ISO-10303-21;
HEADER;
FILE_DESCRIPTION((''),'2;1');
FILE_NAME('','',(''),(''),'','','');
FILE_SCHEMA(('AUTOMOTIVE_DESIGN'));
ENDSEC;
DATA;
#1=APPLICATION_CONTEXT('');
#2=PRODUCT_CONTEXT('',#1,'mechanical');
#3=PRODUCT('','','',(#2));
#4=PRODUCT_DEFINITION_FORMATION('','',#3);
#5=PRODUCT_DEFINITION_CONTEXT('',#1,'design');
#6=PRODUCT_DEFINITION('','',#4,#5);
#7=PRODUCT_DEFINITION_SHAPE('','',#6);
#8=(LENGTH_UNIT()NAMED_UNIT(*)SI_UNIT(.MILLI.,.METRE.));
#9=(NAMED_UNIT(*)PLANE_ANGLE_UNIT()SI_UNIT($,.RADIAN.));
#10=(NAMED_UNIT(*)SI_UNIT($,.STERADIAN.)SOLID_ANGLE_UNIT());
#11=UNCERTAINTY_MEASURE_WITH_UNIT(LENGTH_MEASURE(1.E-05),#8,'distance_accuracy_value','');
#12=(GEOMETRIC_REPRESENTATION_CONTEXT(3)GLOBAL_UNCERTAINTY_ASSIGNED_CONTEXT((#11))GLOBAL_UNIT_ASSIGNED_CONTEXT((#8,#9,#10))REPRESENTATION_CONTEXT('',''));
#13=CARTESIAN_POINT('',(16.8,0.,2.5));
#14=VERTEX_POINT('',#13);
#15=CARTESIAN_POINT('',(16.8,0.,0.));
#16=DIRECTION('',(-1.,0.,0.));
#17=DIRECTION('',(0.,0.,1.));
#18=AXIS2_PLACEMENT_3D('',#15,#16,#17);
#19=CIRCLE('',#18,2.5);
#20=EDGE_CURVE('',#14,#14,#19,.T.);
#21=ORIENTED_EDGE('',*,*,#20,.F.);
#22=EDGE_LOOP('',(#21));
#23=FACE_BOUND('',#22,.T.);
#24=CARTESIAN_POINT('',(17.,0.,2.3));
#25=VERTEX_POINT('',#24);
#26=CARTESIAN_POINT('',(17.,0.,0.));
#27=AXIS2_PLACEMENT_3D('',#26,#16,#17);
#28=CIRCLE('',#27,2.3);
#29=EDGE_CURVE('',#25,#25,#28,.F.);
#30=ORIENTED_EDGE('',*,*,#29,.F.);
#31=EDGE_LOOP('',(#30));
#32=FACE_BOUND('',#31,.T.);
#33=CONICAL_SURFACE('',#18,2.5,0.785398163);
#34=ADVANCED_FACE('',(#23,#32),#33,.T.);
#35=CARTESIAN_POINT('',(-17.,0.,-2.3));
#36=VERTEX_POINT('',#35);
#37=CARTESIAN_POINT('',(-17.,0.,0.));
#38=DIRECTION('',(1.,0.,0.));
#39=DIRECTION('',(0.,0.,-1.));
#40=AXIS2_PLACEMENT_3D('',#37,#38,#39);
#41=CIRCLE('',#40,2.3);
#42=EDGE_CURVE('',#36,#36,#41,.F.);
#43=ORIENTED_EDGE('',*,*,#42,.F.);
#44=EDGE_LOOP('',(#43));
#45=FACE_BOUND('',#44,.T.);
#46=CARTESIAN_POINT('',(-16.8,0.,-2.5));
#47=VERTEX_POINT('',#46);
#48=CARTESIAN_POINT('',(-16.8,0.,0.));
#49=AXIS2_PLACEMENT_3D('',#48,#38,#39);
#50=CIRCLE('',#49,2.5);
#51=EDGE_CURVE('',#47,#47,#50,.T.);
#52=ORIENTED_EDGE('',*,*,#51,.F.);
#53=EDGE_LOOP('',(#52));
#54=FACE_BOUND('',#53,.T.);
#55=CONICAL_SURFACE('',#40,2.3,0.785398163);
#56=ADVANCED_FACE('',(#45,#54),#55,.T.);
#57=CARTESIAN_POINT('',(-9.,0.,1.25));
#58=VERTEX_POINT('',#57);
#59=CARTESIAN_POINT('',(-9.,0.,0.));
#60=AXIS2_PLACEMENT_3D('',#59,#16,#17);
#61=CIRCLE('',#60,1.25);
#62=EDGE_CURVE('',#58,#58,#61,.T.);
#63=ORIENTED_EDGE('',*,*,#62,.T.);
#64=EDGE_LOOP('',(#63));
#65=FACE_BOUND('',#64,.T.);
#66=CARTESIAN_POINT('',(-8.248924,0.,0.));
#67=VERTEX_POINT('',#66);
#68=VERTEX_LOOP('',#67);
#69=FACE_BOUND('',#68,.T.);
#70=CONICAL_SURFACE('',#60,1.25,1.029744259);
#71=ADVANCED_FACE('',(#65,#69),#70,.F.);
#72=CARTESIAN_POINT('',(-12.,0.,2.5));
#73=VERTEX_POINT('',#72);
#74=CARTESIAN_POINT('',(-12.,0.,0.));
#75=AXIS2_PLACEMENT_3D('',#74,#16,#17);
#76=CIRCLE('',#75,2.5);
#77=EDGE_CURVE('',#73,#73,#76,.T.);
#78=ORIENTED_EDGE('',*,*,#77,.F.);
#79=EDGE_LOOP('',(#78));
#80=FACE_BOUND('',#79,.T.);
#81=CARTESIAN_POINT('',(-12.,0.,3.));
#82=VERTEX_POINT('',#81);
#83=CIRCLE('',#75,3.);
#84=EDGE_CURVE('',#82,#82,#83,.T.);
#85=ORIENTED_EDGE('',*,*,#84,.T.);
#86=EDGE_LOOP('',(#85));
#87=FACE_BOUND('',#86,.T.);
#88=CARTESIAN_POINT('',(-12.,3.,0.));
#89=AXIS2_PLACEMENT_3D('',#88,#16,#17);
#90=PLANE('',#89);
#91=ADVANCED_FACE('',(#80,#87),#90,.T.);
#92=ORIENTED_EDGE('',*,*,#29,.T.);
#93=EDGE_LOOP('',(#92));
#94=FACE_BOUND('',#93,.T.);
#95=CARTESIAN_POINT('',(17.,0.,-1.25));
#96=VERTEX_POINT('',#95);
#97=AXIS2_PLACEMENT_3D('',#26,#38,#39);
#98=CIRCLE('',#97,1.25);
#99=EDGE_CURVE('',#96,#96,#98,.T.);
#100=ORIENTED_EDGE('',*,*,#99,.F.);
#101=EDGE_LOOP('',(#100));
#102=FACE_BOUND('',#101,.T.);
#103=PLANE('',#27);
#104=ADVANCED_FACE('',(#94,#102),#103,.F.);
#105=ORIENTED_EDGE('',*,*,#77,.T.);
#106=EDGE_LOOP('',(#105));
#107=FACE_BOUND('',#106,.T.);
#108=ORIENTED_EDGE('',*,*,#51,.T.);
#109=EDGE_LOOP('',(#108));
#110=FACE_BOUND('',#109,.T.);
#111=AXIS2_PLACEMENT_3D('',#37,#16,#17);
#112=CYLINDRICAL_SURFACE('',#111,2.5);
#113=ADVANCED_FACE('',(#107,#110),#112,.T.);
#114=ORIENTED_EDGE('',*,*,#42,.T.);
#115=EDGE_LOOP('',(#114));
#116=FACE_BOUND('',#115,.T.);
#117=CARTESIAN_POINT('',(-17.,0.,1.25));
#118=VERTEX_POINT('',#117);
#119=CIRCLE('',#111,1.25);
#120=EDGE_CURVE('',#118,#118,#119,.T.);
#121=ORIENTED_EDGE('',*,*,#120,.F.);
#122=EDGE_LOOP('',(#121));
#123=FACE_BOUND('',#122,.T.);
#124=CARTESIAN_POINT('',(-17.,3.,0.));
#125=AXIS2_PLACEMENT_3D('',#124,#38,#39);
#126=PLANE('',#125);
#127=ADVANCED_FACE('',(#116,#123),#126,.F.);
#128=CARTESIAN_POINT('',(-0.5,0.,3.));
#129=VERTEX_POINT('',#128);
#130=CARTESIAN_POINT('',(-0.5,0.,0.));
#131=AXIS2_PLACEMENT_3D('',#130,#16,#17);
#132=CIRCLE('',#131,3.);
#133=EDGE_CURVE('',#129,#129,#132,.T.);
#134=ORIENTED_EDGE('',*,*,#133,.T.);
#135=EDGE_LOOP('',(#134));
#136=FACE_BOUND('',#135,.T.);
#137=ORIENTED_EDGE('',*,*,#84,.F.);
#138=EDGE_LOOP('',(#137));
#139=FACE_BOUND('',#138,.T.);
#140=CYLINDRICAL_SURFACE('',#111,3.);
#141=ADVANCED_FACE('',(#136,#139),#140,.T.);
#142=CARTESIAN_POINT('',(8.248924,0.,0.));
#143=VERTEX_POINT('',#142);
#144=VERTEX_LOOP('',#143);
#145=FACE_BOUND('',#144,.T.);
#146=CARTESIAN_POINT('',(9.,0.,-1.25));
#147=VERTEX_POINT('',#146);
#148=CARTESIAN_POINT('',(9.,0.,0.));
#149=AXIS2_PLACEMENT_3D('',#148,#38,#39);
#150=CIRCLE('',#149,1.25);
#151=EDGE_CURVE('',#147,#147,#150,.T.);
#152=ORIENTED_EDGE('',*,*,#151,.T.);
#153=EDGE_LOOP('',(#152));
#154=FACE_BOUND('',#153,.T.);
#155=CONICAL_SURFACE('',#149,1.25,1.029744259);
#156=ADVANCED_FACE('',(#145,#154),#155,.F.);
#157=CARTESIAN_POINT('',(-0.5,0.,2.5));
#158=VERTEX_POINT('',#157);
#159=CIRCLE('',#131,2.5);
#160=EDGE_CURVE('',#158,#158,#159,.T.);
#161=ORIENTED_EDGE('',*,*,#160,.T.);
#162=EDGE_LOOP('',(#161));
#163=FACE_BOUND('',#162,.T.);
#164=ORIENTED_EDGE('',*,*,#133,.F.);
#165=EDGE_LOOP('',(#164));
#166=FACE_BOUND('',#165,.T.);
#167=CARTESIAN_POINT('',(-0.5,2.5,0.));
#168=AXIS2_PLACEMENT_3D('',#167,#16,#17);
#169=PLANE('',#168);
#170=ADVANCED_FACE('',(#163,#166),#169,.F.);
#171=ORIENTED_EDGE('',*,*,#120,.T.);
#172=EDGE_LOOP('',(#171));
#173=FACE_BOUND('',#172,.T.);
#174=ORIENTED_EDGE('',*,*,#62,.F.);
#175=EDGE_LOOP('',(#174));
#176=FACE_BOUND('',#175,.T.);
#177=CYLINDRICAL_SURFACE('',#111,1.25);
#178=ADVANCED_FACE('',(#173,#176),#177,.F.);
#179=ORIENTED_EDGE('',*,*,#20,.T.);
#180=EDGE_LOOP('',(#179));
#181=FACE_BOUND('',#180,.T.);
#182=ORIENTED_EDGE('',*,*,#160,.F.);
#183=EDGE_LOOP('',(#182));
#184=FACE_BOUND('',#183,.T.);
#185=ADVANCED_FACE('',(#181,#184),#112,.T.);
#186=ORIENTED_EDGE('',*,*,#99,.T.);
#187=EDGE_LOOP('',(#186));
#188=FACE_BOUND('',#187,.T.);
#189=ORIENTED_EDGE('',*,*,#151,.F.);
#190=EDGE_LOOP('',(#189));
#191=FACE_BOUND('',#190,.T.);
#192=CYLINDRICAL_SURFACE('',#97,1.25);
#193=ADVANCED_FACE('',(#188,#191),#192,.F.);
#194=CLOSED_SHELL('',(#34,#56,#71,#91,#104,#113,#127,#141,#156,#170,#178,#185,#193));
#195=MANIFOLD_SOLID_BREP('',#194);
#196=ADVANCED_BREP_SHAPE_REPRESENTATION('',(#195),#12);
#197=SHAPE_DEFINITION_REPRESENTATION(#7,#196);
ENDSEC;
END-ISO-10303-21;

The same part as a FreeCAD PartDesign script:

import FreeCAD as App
import Part
import Sketcher
from FreeCAD import Vector


def edges_at(feature, points):
    """Names of the edges that pass closest to the given points."""
    edges = feature.Shape.Edges
    near = lambda p: min(range(len(edges)), key=lambda i: edges[i].distToShape(Part.Vertex(*p))[0])
    return sorted({f"Edge{near(p) + 1}" for p in points})

doc = App.newDocument("Part")
body = doc.addObject("PartDesign::Body", "Body")

# Sketch on XY plane
sketch1 = body.newObject("Sketcher::SketchObject", "Sketch")
sketch1.AttachmentSupport = (doc.getObject("XY_Plane"), [""])
sketch1.MapMode = "FlatFace"
sketch1.addGeometry([
    Part.LineSegment(Vector(17, 0, 0), Vector(17, 2.5, 0)),  # 0
    Part.LineSegment(Vector(17, 2.5, 0), Vector(-0.5, 2.5, 0)),  # 1
    Part.LineSegment(Vector(-0.5, 2.5, 0), Vector(-0.5, 3, 0)),  # 2
    Part.LineSegment(Vector(-0.5, 3, 0), Vector(-17, 3, 0)),  # 3
    Part.LineSegment(Vector(-17, 3, 0), Vector(-17, 0, 0)),  # 4
    Part.LineSegment(Vector(-17, 0, 0), Vector(17, 0, 0)),  # 5
], False)
sketch1.addConstraint([
    Sketcher.Constraint("Coincident", 0, 2, 1, 1),
    Sketcher.Constraint("Coincident", 1, 2, 2, 1),
    Sketcher.Constraint("Coincident", 2, 2, 3, 1),
    Sketcher.Constraint("Coincident", 3, 2, 4, 1),
    Sketcher.Constraint("Coincident", 4, 2, 5, 1),
    Sketcher.Constraint("Coincident", 5, 2, 0, 1),
    Sketcher.Constraint("Vertical", 0),
    Sketcher.Constraint("Horizontal", 1),
    Sketcher.Constraint("Vertical", 2),
    Sketcher.Constraint("Horizontal", 3),
    Sketcher.Constraint("Vertical", 4),
    Sketcher.Constraint("Horizontal", 5),
    Sketcher.Constraint("Symmetric", 4, 2, 5, 2, -1, 1),
    Sketcher.Constraint("DistanceX", 5, 1, 5, 2, 34.0),
    Sketcher.Constraint("DistanceY", 4, 2, 4, 1, 3.0),
    Sketcher.Constraint("DistanceX", 1, 2, 1, 1, 17.5),
    Sketcher.Constraint("DistanceY", 0, 1, 0, 2, 2.5),
])
revolution = body.newObject("PartDesign::Revolution", "Revolution")
revolution.Profile = sketch1
revolution.ReferenceAxis = (sketch1, ["H_Axis"])
revolution.Angle = 360

# Sketch on YZ plane
sketch2 = body.newObject("Sketcher::SketchObject", "Sketch001")
sketch2.AttachmentSupport = (doc.getObject("YZ_Plane"), [""])
sketch2.MapMode = "FlatFace"
sketch2.AttachmentOffset = App.Placement(Vector(0, 0, 17), App.Rotation())
sketch2.addGeometry(Part.Circle(Vector(0, 0, 0), Vector(0, 0, 1), 1.25), False)
sketch2.addConstraint([
    Sketcher.Constraint("Coincident", 0, 3, -1, 1),
    Sketcher.Constraint("Diameter", 0, 2.5),
])
doc.recompute()
hole = body.newObject("PartDesign::Hole", "Hole")
hole.Profile = sketch2
hole.ThreadType = "None"
hole.Diameter = 2.5
hole.DepthType = "Dimension"
hole.Depth = 8
hole.DrillPoint = "Angled"
hole.DrillPointAngle = 118

# Sketch on XY plane
sketch3 = body.newObject("Sketcher::SketchObject", "Sketch002")
sketch3.AttachmentSupport = (doc.getObject("XY_Plane"), [""])
sketch3.MapMode = "FlatFace"
sketch3.addGeometry([
    Part.LineSegment(Vector(-17, 3, 0), Vector(-17, 2.5, 0)),
    Part.LineSegment(Vector(-17, 2.5, 0), Vector(-12, 2.5, 0)),
    Part.LineSegment(Vector(-12, 2.5, 0), Vector(-12, 3, 0)),
    Part.LineSegment(Vector(-12, 3, 0), Vector(-17, 3, 0)),
], False)
sketch3.addConstraint([
    Sketcher.Constraint("Coincident", 0, 2, 1, 1),
    Sketcher.Constraint("Coincident", 1, 2, 2, 1),
    Sketcher.Constraint("Coincident", 2, 2, 3, 1),
    Sketcher.Constraint("Coincident", 3, 2, 0, 1),
    Sketcher.Constraint("Vertical", 0),
    Sketcher.Constraint("Horizontal", 1),
    Sketcher.Constraint("Vertical", 2),
    Sketcher.Constraint("Horizontal", 3),
    Sketcher.Constraint("DistanceX", 1, 1, 1, 2, 5.0),
    Sketcher.Constraint("DistanceY", 0, 2, 0, 1, 0.5),
    Sketcher.Constraint("DistanceX", 0, 2, -1, 1, 17.0),
    Sketcher.Constraint("DistanceY", -1, 1, 2, 2, 3.0),
])
groove = body.newObject("PartDesign::Groove", "Groove")
groove.Profile = sketch3
groove.ReferenceAxis = (sketch3, ["H_Axis"])
groove.Angle = 360
doc.recompute()

chamfer = body.newObject("PartDesign::Chamfer", "Chamfer")
chamfer.Base = (groove, edges_at(groove, [(-17, 0, -2.5), (17, 0, -2.5)]))
chamfer.Size = 0.2

# Sketch on YZ plane
sketch4 = body.newObject("Sketcher::SketchObject", "Sketch003")
sketch4.AttachmentSupport = (doc.getObject("YZ_Plane"), [""])
sketch4.MapMode = "FlatFace"
sketch4.AttachmentOffset = App.Placement(Vector(0, 0, -17), App.Rotation())
sketch4.addGeometry(Part.Circle(Vector(0, 0, 0), Vector(0, 0, 1), 1.25), False)
sketch4.addConstraint([
    Sketcher.Constraint("Coincident", 0, 3, -1, 1),
    Sketcher.Constraint("Diameter", 0, 2.5),
])
doc.recompute()
hole2 = body.newObject("PartDesign::Hole", "Hole001")
hole2.Profile = sketch4
hole2.ThreadType = "None"
hole2.Diameter = 2.5
hole2.DepthType = "Dimension"
hole2.Depth = 8
hole2.DrillPoint = "Angled"
hole2.DrillPointAngle = 118
hole2.Reversed = True

doc.recompute()
